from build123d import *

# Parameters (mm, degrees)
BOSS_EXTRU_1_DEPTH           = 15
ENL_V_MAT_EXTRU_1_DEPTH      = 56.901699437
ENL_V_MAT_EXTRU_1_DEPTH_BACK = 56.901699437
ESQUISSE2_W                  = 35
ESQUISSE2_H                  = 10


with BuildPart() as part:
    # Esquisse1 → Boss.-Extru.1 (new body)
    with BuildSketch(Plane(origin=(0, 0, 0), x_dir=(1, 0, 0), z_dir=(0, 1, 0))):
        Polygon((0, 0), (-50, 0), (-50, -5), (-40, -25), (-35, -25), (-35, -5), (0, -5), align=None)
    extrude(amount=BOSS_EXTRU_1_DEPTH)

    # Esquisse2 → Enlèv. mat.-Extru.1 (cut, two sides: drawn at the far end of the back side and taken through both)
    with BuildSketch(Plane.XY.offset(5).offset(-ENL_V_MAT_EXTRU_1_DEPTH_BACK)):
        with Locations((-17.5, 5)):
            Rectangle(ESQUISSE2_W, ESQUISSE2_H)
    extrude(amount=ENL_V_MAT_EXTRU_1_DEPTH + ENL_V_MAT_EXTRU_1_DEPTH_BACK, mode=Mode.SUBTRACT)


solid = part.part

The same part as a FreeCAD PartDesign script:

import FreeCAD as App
import Part
import Sketcher

V = App.Vector
Q = App.Units.Quantity

doc = App.newDocument("Part")
body = doc.addObject("PartDesign::Body", "Body")

# Sketch on XZ plane
sketch1 = body.newObject("Sketcher::SketchObject", "Sketch")
sketch1.AttachmentSupport = (doc.getObject("XZ_Plane"), [""])
sketch1.MapMode = "FlatFace"
sketch1.addGeometry(Part.LineSegment(V(0, 0, 0), V(-50, 0, 0)), False)
sketch1.addGeometry(Part.LineSegment(V(-50, 0, 0), V(-50, 5, 0)), False)
sketch1.addGeometry(Part.LineSegment(V(-50, 5, 0), V(-40, 25, 0)), False)
sketch1.addGeometry(Part.LineSegment(V(-40, 25, 0), V(-35, 25, 0)), False)
sketch1.addGeometry(Part.LineSegment(V(-35, 25, 0), V(-35, 5, 0)), False)
sketch1.addGeometry(Part.LineSegment(V(-35, 5, 0), V(0, 5, 0)), False)
sketch1.addGeometry(Part.LineSegment(V(0, 5, 0), V(0, 0, 0)), False)
sketch1.addConstraint(Sketcher.Constraint("Coincident", 0, 2, 1, 1))
sketch1.addConstraint(Sketcher.Constraint("Coincident", 1, 2, 2, 1))
sketch1.addConstraint(Sketcher.Constraint("Coincident", 2, 2, 3, 1))
sketch1.addConstraint(Sketcher.Constraint("Coincident", 3, 2, 4, 1))
sketch1.addConstraint(Sketcher.Constraint("Coincident", 4, 2, 5, 1))
sketch1.addConstraint(Sketcher.Constraint("Coincident", 5, 2, 6, 1))
sketch1.addConstraint(Sketcher.Constraint("Coincident", 6, 2, 0, 1))
sketch1.addConstraint(Sketcher.Constraint("Horizontal", 0))
sketch1.addConstraint(Sketcher.Constraint("Vertical", 1))
sketch1.addConstraint(Sketcher.Constraint("Horizontal", 3))
sketch1.addConstraint(Sketcher.Constraint("Vertical", 4))
sketch1.addConstraint(Sketcher.Constraint("Horizontal", 5))
sketch1.addConstraint(Sketcher.Constraint("Vertical", 6))
sketch1.addConstraint(Sketcher.Constraint("Coincident", 6, 2, -1, 1))
sketch1.addConstraint(Sketcher.Constraint("Horizontal", 1, 2, 4, 2))
sketch1.addConstraint(Sketcher.Constraint("Equal", 3, 1))
sketch1.addConstraint(Sketcher.Constraint("DistanceX", 0, 2, 0, 1, Q("50 mm")))
sketch1.addConstraint(Sketcher.Constraint("DistanceX", 3, 1, 3, 2, Q("5 mm")))
sketch1.addConstraint(Sketcher.Constraint("DistanceX", 5, 1, 5, 2, Q("35 mm")))
sketch1.addConstraint(Sketcher.Constraint("DistanceY", 4, 2, 4, 1, Q("20 mm")))
pad1 = body.newObject("PartDesign::Pad", "Pad")
pad1.Profile = sketch1
pad1.Length = 15
pad1.Reversed = True

# Sketch on XY plane
sketch2 = body.newObject("Sketcher::SketchObject", "Sketch001")
sketch2.AttachmentSupport = (doc.getObject("XY_Plane"), [""])
sketch2.MapMode = "FlatFace"
sketch2.AttachmentOffset = App.Placement(V(0, 0, 5), App.Rotation())
sketch2.addGeometry(Part.LineSegment(V(-35, 10, 0), V(-35, 0, 0)), False)
sketch2.addGeometry(Part.LineSegment(V(-35, 0, 0), V(0, 0, 0)), False)
sketch2.addGeometry(Part.LineSegment(V(0, 0, 0), V(0, 10, 0)), False)
sketch2.addGeometry(Part.LineSegment(V(0, 10, 0), V(-35, 10, 0)), False)
sketch2.addConstraint(Sketcher.Constraint("Coincident", 0, 2, 1, 1))
sketch2.addConstraint(Sketcher.Constraint("Coincident", 1, 2, 2, 1))
sketch2.addConstraint(Sketcher.Constraint("Coincident", 2, 2, 3, 1))
sketch2.addConstraint(Sketcher.Constraint("Coincident", 3, 2, 0, 1))
sketch2.addConstraint(Sketcher.Constraint("Vertical", 0))
sketch2.addConstraint(Sketcher.Constraint("Horizontal", 1))
sketch2.addConstraint(Sketcher.Constraint("Vertical", 2))
sketch2.addConstraint(Sketcher.Constraint("Horizontal", 3))
sketch2.addConstraint(Sketcher.Constraint("Coincident", 1, 2, -1, 1))
sketch2.addConstraint(Sketcher.Constraint("DistanceX", 1, 1, 1, 2, Q("35 mm")))
sketch2.addConstraint(Sketcher.Constraint("DistanceY", 0, 2, 0, 1, Q("10 mm")))
pocket1 = body.newObject("PartDesign::Pocket", "Pocket")
pocket1.Profile = sketch2
pocket1.Type = "ThroughAll"
pocket1.Midplane = True

doc.recompute()
